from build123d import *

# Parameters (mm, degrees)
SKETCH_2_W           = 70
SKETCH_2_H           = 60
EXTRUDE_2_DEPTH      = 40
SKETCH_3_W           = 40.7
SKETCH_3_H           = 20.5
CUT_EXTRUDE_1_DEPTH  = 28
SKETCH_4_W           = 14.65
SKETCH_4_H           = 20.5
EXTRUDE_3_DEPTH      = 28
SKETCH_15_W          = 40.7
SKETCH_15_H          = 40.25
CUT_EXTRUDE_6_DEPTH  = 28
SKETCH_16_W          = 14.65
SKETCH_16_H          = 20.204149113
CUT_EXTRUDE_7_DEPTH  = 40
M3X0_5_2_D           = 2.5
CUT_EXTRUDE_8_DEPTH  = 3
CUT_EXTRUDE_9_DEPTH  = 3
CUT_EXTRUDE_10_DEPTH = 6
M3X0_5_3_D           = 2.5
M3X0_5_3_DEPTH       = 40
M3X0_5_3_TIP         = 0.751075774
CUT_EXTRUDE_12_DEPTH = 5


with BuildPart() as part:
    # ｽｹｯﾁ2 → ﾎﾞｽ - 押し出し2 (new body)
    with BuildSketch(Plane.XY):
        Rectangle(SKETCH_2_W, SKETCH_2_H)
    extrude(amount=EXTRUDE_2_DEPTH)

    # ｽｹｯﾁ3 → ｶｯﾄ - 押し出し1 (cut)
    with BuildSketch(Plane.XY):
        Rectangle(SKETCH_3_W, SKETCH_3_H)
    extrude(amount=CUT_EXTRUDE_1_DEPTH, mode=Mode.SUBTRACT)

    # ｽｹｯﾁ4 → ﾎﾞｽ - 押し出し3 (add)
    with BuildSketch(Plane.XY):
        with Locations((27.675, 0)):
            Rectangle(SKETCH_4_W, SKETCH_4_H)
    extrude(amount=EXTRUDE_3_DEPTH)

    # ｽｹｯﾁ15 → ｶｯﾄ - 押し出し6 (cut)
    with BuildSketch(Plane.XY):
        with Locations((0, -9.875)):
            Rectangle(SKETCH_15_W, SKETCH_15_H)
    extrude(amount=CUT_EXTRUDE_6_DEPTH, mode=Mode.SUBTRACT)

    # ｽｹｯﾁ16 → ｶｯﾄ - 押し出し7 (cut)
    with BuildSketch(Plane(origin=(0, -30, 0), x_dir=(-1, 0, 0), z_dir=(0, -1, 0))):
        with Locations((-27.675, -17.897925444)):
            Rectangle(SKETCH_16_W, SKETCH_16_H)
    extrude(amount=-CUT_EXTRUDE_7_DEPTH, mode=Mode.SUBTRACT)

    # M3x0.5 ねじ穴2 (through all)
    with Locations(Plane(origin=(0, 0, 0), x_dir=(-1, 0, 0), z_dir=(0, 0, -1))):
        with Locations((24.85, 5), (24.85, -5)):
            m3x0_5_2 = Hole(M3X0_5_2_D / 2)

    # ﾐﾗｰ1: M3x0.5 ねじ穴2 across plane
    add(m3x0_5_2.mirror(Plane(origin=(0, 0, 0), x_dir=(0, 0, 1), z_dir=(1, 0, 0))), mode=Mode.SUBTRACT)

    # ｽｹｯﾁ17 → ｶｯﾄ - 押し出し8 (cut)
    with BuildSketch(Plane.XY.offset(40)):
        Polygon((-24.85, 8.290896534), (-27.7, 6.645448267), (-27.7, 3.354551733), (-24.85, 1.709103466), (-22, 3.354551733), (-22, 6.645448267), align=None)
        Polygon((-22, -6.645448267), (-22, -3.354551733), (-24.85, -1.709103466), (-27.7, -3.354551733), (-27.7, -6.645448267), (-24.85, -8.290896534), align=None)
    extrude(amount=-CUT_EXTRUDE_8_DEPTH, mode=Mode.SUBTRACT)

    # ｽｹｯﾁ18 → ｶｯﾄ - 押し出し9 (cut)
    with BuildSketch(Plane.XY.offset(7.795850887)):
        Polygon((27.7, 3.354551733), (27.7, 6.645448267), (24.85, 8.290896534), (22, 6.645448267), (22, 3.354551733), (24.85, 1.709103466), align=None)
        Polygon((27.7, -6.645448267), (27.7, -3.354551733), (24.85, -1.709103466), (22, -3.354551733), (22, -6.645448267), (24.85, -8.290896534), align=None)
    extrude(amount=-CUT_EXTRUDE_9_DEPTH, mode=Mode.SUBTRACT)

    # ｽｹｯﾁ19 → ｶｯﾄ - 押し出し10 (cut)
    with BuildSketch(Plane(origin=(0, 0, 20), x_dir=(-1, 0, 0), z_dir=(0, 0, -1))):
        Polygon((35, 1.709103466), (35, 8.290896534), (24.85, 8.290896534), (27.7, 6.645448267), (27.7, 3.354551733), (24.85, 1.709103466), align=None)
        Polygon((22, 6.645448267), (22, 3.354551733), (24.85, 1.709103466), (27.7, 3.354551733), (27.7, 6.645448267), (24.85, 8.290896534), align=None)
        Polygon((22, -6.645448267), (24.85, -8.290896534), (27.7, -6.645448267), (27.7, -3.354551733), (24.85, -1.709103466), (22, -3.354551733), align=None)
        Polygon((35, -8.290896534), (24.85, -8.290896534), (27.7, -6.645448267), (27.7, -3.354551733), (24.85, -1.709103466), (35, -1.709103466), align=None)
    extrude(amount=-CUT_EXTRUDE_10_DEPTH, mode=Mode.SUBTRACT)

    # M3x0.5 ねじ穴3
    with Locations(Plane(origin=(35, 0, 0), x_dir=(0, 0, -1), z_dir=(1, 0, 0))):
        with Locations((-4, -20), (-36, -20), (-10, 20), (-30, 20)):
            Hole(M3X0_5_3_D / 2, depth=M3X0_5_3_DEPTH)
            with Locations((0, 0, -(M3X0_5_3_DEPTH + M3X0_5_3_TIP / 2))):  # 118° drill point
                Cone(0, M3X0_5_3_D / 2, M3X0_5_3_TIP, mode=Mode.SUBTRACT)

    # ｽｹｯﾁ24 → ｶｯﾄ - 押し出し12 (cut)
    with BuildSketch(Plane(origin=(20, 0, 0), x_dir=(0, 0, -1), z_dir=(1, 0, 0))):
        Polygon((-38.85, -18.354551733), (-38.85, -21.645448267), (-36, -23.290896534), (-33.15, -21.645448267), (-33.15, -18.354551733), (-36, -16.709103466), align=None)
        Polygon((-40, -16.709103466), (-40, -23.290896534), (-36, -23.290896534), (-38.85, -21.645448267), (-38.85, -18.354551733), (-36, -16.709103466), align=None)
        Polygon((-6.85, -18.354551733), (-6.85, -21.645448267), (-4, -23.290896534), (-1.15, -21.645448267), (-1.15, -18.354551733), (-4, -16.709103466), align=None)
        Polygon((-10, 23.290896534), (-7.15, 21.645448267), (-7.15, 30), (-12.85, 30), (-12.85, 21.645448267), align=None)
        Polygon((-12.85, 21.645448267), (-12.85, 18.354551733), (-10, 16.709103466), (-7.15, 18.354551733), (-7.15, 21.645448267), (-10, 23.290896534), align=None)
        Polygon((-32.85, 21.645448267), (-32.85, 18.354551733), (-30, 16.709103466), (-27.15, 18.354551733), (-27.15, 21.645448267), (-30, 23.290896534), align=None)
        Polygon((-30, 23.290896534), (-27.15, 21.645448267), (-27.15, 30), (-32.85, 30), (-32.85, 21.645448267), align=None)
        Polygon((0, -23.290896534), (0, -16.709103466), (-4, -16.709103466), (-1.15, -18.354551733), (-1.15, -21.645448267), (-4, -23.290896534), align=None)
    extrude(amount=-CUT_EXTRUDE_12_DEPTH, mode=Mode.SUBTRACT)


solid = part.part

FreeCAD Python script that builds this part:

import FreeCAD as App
import Part
import Sketcher
from FreeCAD import Vector
Q = App.Units.Quantity


def add_polygon(sketch, points):
    """Adds a closed chain of lines whose ends are joined by coincident constraints."""
    first, n = sketch.GeometryCount, len(points)
    for a, b in zip(points, points[1:] + points[:1]):
        sketch.addGeometry(Part.LineSegment(App.Vector(*a, 0), App.Vector(*b, 0)), False)
    for i in range(n):
        sketch.addConstraint(Sketcher.Constraint("Coincident", first + i, 2, first + (i + 1) % n, 1))

doc = App.newDocument("Part")
body = doc.addObject("PartDesign::Body", "Body")

# Sketch on XY plane
sketch1 = body.newObject("Sketcher::SketchObject", "Sketch")
sketch1.AttachmentSupport = (doc.getObject("XY_Plane"), [""])
sketch1.MapMode = "FlatFace"
add_polygon(sketch1, [(-35, 30), (-35, -30), (35, -30), (35, 30)])  # lines 0-3
sketch1.addConstraint(Sketcher.Constraint("Vertical", 0))
sketch1.addConstraint(Sketcher.Constraint("Horizontal", 1))
sketch1.addConstraint(Sketcher.Constraint("Vertical", 2))
sketch1.addConstraint(Sketcher.Constraint("Horizontal", 3))
sketch1.addConstraint(Sketcher.Constraint("Symmetric", 0, 2, 2, 2, -1, 1))
sketch1.addConstraint(Sketcher.Constraint("DistanceX", 1, 1, 1, 2, Q("70 mm")))
sketch1.addConstraint(Sketcher.Constraint("DistanceY", 0, 2, 0, 1, Q("60 mm")))
pad1 = body.newObject("PartDesign::Pad", "Pad")
pad1.Profile = sketch1
pad1.Length = 40

# Sketch on XY plane
sketch2 = body.newObject("Sketcher::SketchObject", "Sketch001")
sketch2.AttachmentSupport = (doc.getObject("XY_Plane"), [""])
sketch2.MapMode = "FlatFace"
add_polygon(sketch2, [(-20, 10), (-20, -10), (20, -10), (20, 10)])  # lines 0-3
sketch2.addConstraint(Sketcher.Constraint("Vertical", 0))
sketch2.addConstraint(Sketcher.Constraint("Horizontal", 1))
sketch2.addConstraint(Sketcher.Constraint("Vertical", 2))
sketch2.addConstraint(Sketcher.Constraint("Horizontal", 3))
sketch2.addConstraint(Sketcher.Constraint("Symmetric", 0, 2, 2, 2, -1, 1))
sketch2.addConstraint(Sketcher.Constraint("DistanceX", 1, 1, 1, 2, Q("40.7 mm")))
sketch2.addConstraint(Sketcher.Constraint("DistanceY", 0, 2, 0, 1, Q("20.5 mm")))
pocket1 = body.newObject("PartDesign::Pocket", "Pocket")
pocket1.Profile = sketch2
pocket1.Length = 28
pocket1.Reversed = True

# Sketch on XY plane
sketch3 = body.newObject("Sketcher::SketchObject", "Sketch002")
sketch3.AttachmentSupport = (doc.getObject("XY_Plane"), [""])
sketch3.MapMode = "FlatFace"
add_polygon(sketch3, [(20, 10), (20, -10), (35, -10), (35, 10)])  # lines 0-3
sketch3.addConstraint(Sketcher.Constraint("Vertical", 0))
sketch3.addConstraint(Sketcher.Constraint("Horizontal", 1))
sketch3.addConstraint(Sketcher.Constraint("Vertical", 2))
sketch3.addConstraint(Sketcher.Constraint("Horizontal", 3))
sketch3.addConstraint(Sketcher.Constraint("DistanceY", 0, 2, 0, 1, Q("20.5 mm")))
sketch3.addConstraint(Sketcher.Constraint("DistanceX", -1, 1, 1, 2, Q("35 mm")))
sketch3.addConstraint(Sketcher.Constraint("DistanceX", 1, 1, 1, 2, Q("14.65 mm")))
sketch3.addConstraint(Sketcher.Constraint("DistanceY", 0, 2, -1, 1, Q("10.25 mm")))
pad2 = body.newObject("PartDesign::Pad", "Pad001")
pad2.Profile = sketch3
pad2.Length = 28

# Sketch on XY plane
sketch4 = body.newObject("Sketcher::SketchObject", "Sketch003")
sketch4.AttachmentSupport = (doc.getObject("XY_Plane"), [""])
sketch4.MapMode = "FlatFace"
add_polygon(sketch4, [(-20, 10), (-20, -30), (20, -30), (20, 10)])  # lines 0-3
sketch4.addConstraint(Sketcher.Constraint("Vertical", 0))
sketch4.addConstraint(Sketcher.Constraint("Horizontal", 1))
sketch4.addConstraint(Sketcher.Constraint("Vertical", 2))
sketch4.addConstraint(Sketcher.Constraint("Horizontal", 3))
sketch4.addConstraint(Sketcher.Constraint("DistanceX", 1, 1, 1, 2, Q("40.7 mm")))
sketch4.addConstraint(Sketcher.Constraint("DistanceY", 0, 2, -1, 1, Q("30 mm")))
sketch4.addConstraint(Sketcher.Constraint("DistanceY", 0, 2, 0, 1, Q("40.25 mm")))
sketch4.addConstraint(Sketcher.Constraint("DistanceX", 0, 2, -1, 1, Q("20.35 mm")))
pocket2 = body.newObject("PartDesign::Pocket", "Pocket001")
pocket2.Profile = sketch4
pocket2.Length = 28
pocket2.Reversed = True

# Sketch on XZ plane
sketch5 = body.newObject("Sketcher::SketchObject", "Sketch004")
sketch5.AttachmentSupport = (doc.getObject("XZ_Plane"), [""])
sketch5.MapMode = "FlatFace"
sketch5.AttachmentOffset = App.Placement(Vector(0, 0, 30), App.Rotation())
add_polygon(sketch5, [(35, 8), (35, 28), (20, 28), (20, 8)])  # lines 0-3
sketch5.addConstraint(Sketcher.Constraint("Vertical", 0))
sketch5.addConstraint(Sketcher.Constraint("Horizontal", 1))
sketch5.addConstraint(Sketcher.Constraint("Vertical", 2))
sketch5.addConstraint(Sketcher.Constraint("Horizontal", 3))
sketch5.addConstraint(Sketcher.Constraint("DistanceX", -1, 1, 0, 2, Q("35 mm")))
sketch5.addConstraint(Sketcher.Constraint("DistanceY", -1, 1, 0, 2, Q("28 mm")))
sketch5.addConstraint(Sketcher.Constraint("DistanceX", 1, 2, 1, 1, Q("14.65 mm")))
sketch5.addConstraint(Sketcher.Constraint("DistanceY", 0, 1, 0, 2, Q("20.204149 mm")))
pocket3 = body.newObject("PartDesign::Pocket", "Pocket002")
pocket3.Profile = sketch5
pocket3.Length = 40

# Sketch on XY plane
sketch6 = body.newObject("Sketcher::SketchObject", "Sketch005")
sketch6.AttachmentSupport = (doc.getObject("XY_Plane"), [""])
sketch6.MapMode = "FlatFace"
sketch6.addGeometry(Part.Circle(Vector(-24.9, 5, 0), Vector(0, 0, 1), 1.2), False)
sketch6.addGeometry(Part.Circle(Vector(-24.9, -5, 0), Vector(0, 0, 1), 1.2), False)
sketch6.addConstraint(Sketcher.Constraint("Equal", 0, 1))
sketch6.addConstraint(Sketcher.Constraint("Symmetric", 0, 3, 1, 3, -1))
sketch6.addConstraint(Sketcher.Constraint("Diameter", 0, Q("2.5 mm")))
sketch6.addConstraint(Sketcher.Constraint("DistanceY", -1, 1, 0, 3, Q("5 mm")))
sketch6.addConstraint(Sketcher.Constraint("DistanceX", 0, 3, -1, 1, Q("24.85 mm")))
doc.recompute()
hole = body.newObject("PartDesign::Hole", "Hole")
hole.Profile = sketch6
hole.ThreadType = "None"
hole.Diameter = 2.5
hole.DepthType = "ThroughAll"
hole.Reversed = True
doc.recompute()

mirrored = body.newObject("PartDesign::Mirrored", "Mirrored")
mirrored.Originals = [hole]
mirrored.MirrorPlane = (doc.getObject("YZ_Plane"), [""])
body.Tip = mirrored

# Sketch on XY plane
sketch7 = body.newObject("Sketcher::SketchObject", "Sketch006")
sketch7.AttachmentSupport = (doc.getObject("XY_Plane"), [""])
sketch7.MapMode = "FlatFace"
sketch7.AttachmentOffset = App.Placement(Vector(0, 0, 40), App.Rotation())
add_polygon(sketch7, [(-24.9, 8.3), (-27.7, 6.6), (-27.7, 3.4), (-24.9, 1.7), (-22, 3.4), (-22, 6.6)])  # lines 0-5
add_polygon(sketch7, [(-22, -6.6), (-22, -3.4), (-24.9, -1.7), (-27.7, -3.4), (-27.7, -6.6), (-24.9, -8.3)])  # lines 6-11
sketch7.addConstraint(Sketcher.Constraint("Vertical", 1))
sketch7.addConstraint(Sketcher.Constraint("Vertical", 4))
sketch7.addConstraint(Sketcher.Constraint("Vertical", 6))
sketch7.addConstraint(Sketcher.Constraint("Vertical", 9))
sketch7.addConstraint(Sketcher.Constraint("Symmetric", 3, 2, 6, 2, -1))
sketch7.addConstraint(Sketcher.Constraint("Symmetric", 2, 2, 7, 2, -1))
sketch7.addConstraint(Sketcher.Constraint("Symmetric", 1, 2, 8, 2, -1))
sketch7.addConstraint(Sketcher.Constraint("Symmetric", 5, 2, 10, 2, -1))
sketch7.addConstraint(Sketcher.Constraint("Parallel", 0, 3))
sketch7.addConstraint(Sketcher.Constraint("Parallel", 2, 5))
sketch7.addConstraint(Sketcher.Constraint("Parallel", 5, 7))
sketch7.addConstraint(Sketcher.Constraint("Parallel", 7, 10))
sketch7.addConstraint(Sketcher.Constraint("Parallel", 8, 11))
sketch7.addConstraint(Sketcher.Constraint("Horizontal", 1, 2, 3, 2))
sketch7.addConstraint(Sketcher.Constraint("Horizontal", 0, 2, 4, 2))
sketch7.addConstraint(Sketcher.Constraint("Angle", 0, Q("-150 deg")))
sketch7.addConstraint(Sketcher.Constraint("DistanceX", 3, 2, -1, 1, Q("22 mm")))
sketch7.addConstraint(Sketcher.Constraint("DistanceY", 6, 2, 4, 2, Q("10 mm")))
sketch7.addConstraint(Sketcher.Constraint("DistanceX", 0, 2, -1, 1, Q("27.7 mm")))
sketch7.addConstraint(Sketcher.Constraint("DistanceY", 1, 2, 1, 1, Q("3.290897 mm")))
pocket4 = body.newObject("PartDesign::Pocket", "Pocket003")
pocket4.Profile = sketch7
pocket4.Length = 3

# Sketch on XY plane
sketch8 = body.newObject("Sketcher::SketchObject", "Sketch007")
sketch8.AttachmentSupport = (doc.getObject("XY_Plane"), [""])
sketch8.MapMode = "FlatFace"
sketch8.AttachmentOffset = App.Placement(Vector(0, 0, 7.795851), App.Rotation())
add_polygon(sketch8, [(27.7, 3.4), (27.7, 6.6), (24.9, 8.3), (22, 6.6), (22, 3.4), (24.9, 1.7)])  # lines 0-5
add_polygon(sketch8, [(27.7, -6.6), (27.7, -3.4), (24.9, -1.7), (22, -3.4), (22, -6.6), (24.9, -8.3)])  # lines 6-11
sketch8.addConstraint(Sketcher.Constraint("Vertical", 0))
sketch8.addConstraint(Sketcher.Constraint("Vertical", 3))
sketch8.addConstraint(Sketcher.Constraint("Vertical", 6))
sketch8.addConstraint(Sketcher.Constraint("Vertical", 9))
sketch8.addConstraint(Sketcher.Constraint("Symmetric", 5, 2, 6, 2, -1))
sketch8.addConstraint(Sketcher.Constraint("Symmetric", 4, 2, 7, 2, -1))
sketch8.addConstraint(Sketcher.Constraint("Symmetric", 3, 2, 8, 2, -1))
sketch8.addConstraint(Sketcher.Constraint("Symmetric", 1, 2, 10, 2, -1))
sketch8.addConstraint(Sketcher.Constraint("Parallel", 1, 4))
sketch8.addConstraint(Sketcher.Constraint("Parallel", 2, 5))
sketch8.addConstraint(Sketcher.Constraint("Parallel", 4, 7))
sketch8.addConstraint(Sketcher.Constraint("Parallel", 7, 10))
sketch8.addConstraint(Sketcher.Constraint("Parallel", 8, 11))
sketch8.addConstraint(Sketcher.Constraint("Horizontal", 0, 2, 2, 2))
sketch8.addConstraint(Sketcher.Constraint("Horizontal", 3, 2, 5, 2))
sketch8.addConstraint(Sketcher.Constraint("Angle", 1, Q("150 deg")))
sketch8.addConstraint(Sketcher.Constraint("DistanceX", -1, 1, 2, 2, Q("22 mm")))
sketch8.addConstraint(Sketcher.Constraint("DistanceY", 6, 2, 0, 2, Q("10 mm")))
sketch8.addConstraint(Sketcher.Constraint("DistanceX", -1, 1, 0, 2, Q("27.7 mm")))
sketch8.addConstraint(Sketcher.Constraint("DistanceY", 0, 1, 0, 2, Q("3.290897 mm")))
pocket5 = body.newObject("PartDesign::Pocket", "Pocket004")
pocket5.Profile = sketch8
pocket5.Length = 3

# Sketch on XY plane
sketch9 = body.newObject("Sketcher::SketchObject", "Sketch008")
sketch9.AttachmentSupport = (doc.getObject("XY_Plane"), [""])
sketch9.MapMode = "FlatFace"
sketch9.AttachmentOffset = App.Placement(Vector(0, 0, 20), App.Rotation())
add_polygon(sketch9, [(-35, 1.7), (-35, 8.3), (-24.9, 8.3), (-22, 6.6), (-22, 3.4), (-24.9, 1.7)])  # lines 0-5
add_polygon(sketch9, [(-22, -6.6), (-24.9, -8.3), (-35, -8.3), (-35, -1.7), (-24.9, -1.7), (-22, -3.4)])  # lines 6-11
sketch9.addConstraint(Sketcher.Constraint("Vertical", 0))
sketch9.addConstraint(Sketcher.Constraint("Horizontal", 1))
sketch9.addConstraint(Sketcher.Constraint("Vertical", 3))
sketch9.addConstraint(Sketcher.Constraint("Horizontal", 5))
sketch9.addConstraint(Sketcher.Constraint("Horizontal", 7))
sketch9.addConstraint(Sketcher.Constraint("Vertical", 8))
sketch9.addConstraint(Sketcher.Constraint("Horizontal", 9))
sketch9.addConstraint(Sketcher.Constraint("Vertical", 11))
sketch9.addConstraint(Sketcher.Constraint("Symmetric", 1, 2, 6, 2, -1))
sketch9.addConstraint(Sketcher.Constraint("Symmetric", 5, 2, 8, 2, -1))
sketch9.addConstraint(Sketcher.Constraint("Symmetric", 3, 2, 10, 2, -1))
sketch9.addConstraint(Sketcher.Constraint("Parallel", 4, 6))
sketch9.addConstraint(Sketcher.Constraint("Parallel", 2, 10))
sketch9.addConstraint(Sketcher.Constraint("Vertical", 1, 2, 4, 2))
sketch9.addConstraint(Sketcher.Constraint("Vertical", 6, 2, 9, 2))
sketch9.addConstraint(Sketcher.Constraint("Angle", 2, Q("-30 deg")))
sketch9.addConstraint(Sketcher.Constraint("DistanceX", 0, 2, -1, 1, Q("35 mm")))
sketch9.addConstraint(Sketcher.Constraint("DistanceX", 2, 2, -1, 1, Q("22 mm")))
sketch9.addConstraint(Sketcher.Constraint("DistanceY", 6, 2, 4, 2, Q("10 mm")))
sketch9.addConstraint(Sketcher.Constraint("DistanceX", 1, 1, 1, 2, Q("10.15 mm")))
sketch9.addConstraint(Sketcher.Constraint("DistanceY", 0, 1, 0, 2, Q("6.581793 mm")))
pocket6 = body.newObject("PartDesign::Pocket", "Pocket005")
pocket6.Profile = sketch9
pocket6.Length = 6
pocket6.Reversed = True

# Sketch on YZ plane
sketch10 = body.newObject("Sketcher::SketchObject", "Sketch009")
sketch10.AttachmentSupport = (doc.getObject("YZ_Plane"), [""])
sketch10.MapMode = "FlatFace"
sketch10.AttachmentOffset = App.Placement(Vector(0, 0, 35), App.Rotation())
sketch10.addGeometry(Part.Circle(Vector(-20, 4, 0), Vector(0, 0, 1), 1.2), False)
sketch10.addGeometry(Part.Circle(Vector(-20, 36, 0), Vector(0, 0, 1), 1.2), False)
sketch10.addGeometry(Part.Circle(Vector(20, 10, 0), Vector(0, 0, 1), 1.2), False)
sketch10.addGeometry(Part.Circle(Vector(20, 30, 0), Vector(0, 0, 1), 1.2), False)
sketch10.addConstraint(Sketcher.Constraint("Equal", 0, 1))
sketch10.addConstraint(Sketcher.Constraint("Equal", 1, 2))
sketch10.addConstraint(Sketcher.Constraint("Equal", 2, 3))
sketch10.addConstraint(Sketcher.Constraint("Vertical", 0, 3, 1, 3))
sketch10.addConstraint(Sketcher.Constraint("Vertical", 2, 3, 3, 3))
sketch10.addConstraint(Sketcher.Constraint("Diameter", 0, Q("2.5 mm")))
sketch10.addConstraint(Sketcher.Constraint("DistanceX", 0, 3, -1, 1, Q("20 mm")))
sketch10.addConstraint(Sketcher.Constraint("DistanceY", -1, 1, 0, 3, Q("4 mm")))
sketch10.addConstraint(Sketcher.Constraint("DistanceY", -1, 1, 1, 3, Q("36 mm")))
sketch10.addConstraint(Sketcher.Constraint("DistanceX", -1, 1, 2, 3, Q("20 mm")))
sketch10.addConstraint(Sketcher.Constraint("DistanceY", -1, 1, 2, 3, Q("10 mm")))
sketch10.addConstraint(Sketcher.Constraint("DistanceY", -1, 1, 3, 3, Q("30 mm")))
doc.recompute()
hole2 = body.newObject("PartDesign::Hole", "Hole001")
hole2.Profile = sketch10
hole2.ThreadType = "None"
hole2.Diameter = 2.5
hole2.DepthType = "Dimension"
hole2.Depth = 40
hole2.DrillPoint = "Angled"
hole2.DrillPointAngle = 118

# Sketch on YZ plane
sketch11 = body.newObject("Sketcher::SketchObject", "Sketch010")
sketch11.AttachmentSupport = (doc.getObject("YZ_Plane"), [""])
sketch11.MapMode = "FlatFace"
sketch11.AttachmentOffset = App.Placement(Vector(0, 0, 20), App.Rotation())
add_polygon(sketch11, [(-23.3, 36), (-21.6, 33.1), (-18.4, 33.1), (-16.7, 36), (-16.7, 40), (-23.3, 40)])  # lines 0-5
add_polygon(sketch11, [(-18.4, 6.8), (-21.6, 6.8), (-23.3, 4), (-23.3, 0), (-16.7, 0), (-16.7, 4)])  # lines 6-11
add_polygon(sketch11, [(30, 7.2), (30, 12.8), (18.4, 12.8), (16.7, 10), (18.4, 7.2)])  # lines 12-16
add_polygon(sketch11, [(18.4, 32.9), (16.7, 30), (18.4, 27.1), (30, 27.1), (30, 32.9)])  # lines 17-21
sketch11.addConstraint(Sketcher.Constraint("Horizontal", 1))
sketch11.addConstraint(Sketcher.Constraint("Vertical", 3))
sketch11.addConstraint(Sketcher.Constraint("Horizontal", 4))
sketch11.addConstraint(Sketcher.Constraint("Vertical", 5))
sketch11.addConstraint(Sketcher.Constraint("Horizontal", 6))
sketch11.addConstraint(Sketcher.Constraint("Vertical", 8))
sketch11.addConstraint(Sketcher.Constraint("Horizontal", 9))
sketch11.addConstraint(Sketcher.Constraint("Vertical", 10))
sketch11.addConstraint(Sketcher.Constraint("Vertical", 12))
sketch11.addConstraint(Sketcher.Constraint("Horizontal", 13))
sketch11.addConstraint(Sketcher.Constraint("Horizontal", 16))
sketch11.addConstraint(Sketcher.Constraint("Horizontal", 19))
sketch11.addConstraint(Sketcher.Constraint("Vertical", 20))
sketch11.addConstraint(Sketcher.Constraint("Horizontal", 21))
sketch11.addConstraint(Sketcher.Constraint("PointOnObject", 8, 2, -1))
sketch11.addConstraint(Sketcher.Constraint("Parallel", 2, 7))
sketch11.addConstraint(Sketcher.Constraint("Parallel", 0, 11))
sketch11.addConstraint(Sketcher.Constraint("Parallel", 7, 14))
sketch11.addConstraint(Sketcher.Constraint("Parallel", 11, 15))
sketch11.addConstraint(Sketcher.Constraint("Parallel", 14, 17))
sketch11.addConstraint(Sketcher.Constraint("Parallel", 15, 18))
sketch11.addConstraint(Sketcher.Constraint("Horizontal", 2, 2, 5, 2))
sketch11.addConstraint(Sketcher.Constraint("Horizontal", 7, 2, 10, 2))
sketch11.addConstraint(Sketcher.Constraint("Vertical", 0, 2, 6, 2))
sketch11.addConstraint(Sketcher.Constraint("Vertical", 5, 2, 7, 2))
sketch11.addConstraint(Sketcher.Constraint("Vertical", 3, 2, 9, 2))
sketch11.addConstraint(Sketcher.Constraint("Vertical", 1, 2, 11, 2))
sketch11.addConstraint(Sketcher.Constraint("Vertical", 13, 2, 15, 2))
sketch11.addConstraint(Sketcher.Constraint("Vertical", 14, 2, 17, 2))
sketch11.addConstraint(Sketcher.Constraint("Vertical", 15, 2, 18, 2))
sketch11.addConstraint(Sketcher.Constraint("Vertical", 16, 2, 19, 2))
sketch11.addConstraint(Sketcher.Constraint("Vertical", 18, 2, 21, 2))
sketch11.addConstraint(Sketcher.Constraint("Equal", 5, 8))
sketch11.addConstraint(Sketcher.Constraint("Equal", 11, 14))
sketch11.addConstraint(Sketcher.Constraint("DistanceY", 3, 1, 3, 2, Q("4 mm")))
sketch11.addConstraint(Sketcher.Constraint("Angle", 0, Q("-60 deg")))
sketch11.addConstraint(Sketcher.Constraint("DistanceY", 12, 1, 12, 2, Q("5.7 mm")))
sketch11.addConstraint(Sketcher.Constraint("DistanceY", -1, 1, 2, 2, Q("36 mm")))
sketch11.addConstraint(Sketcher.Constraint("DistanceX", -1, 1, 12, 2, Q("30 mm")))
sketch11.addConstraint(Sketcher.Constraint("DistanceY", -1, 1, 14, 2, Q("10 mm")))
sketch11.addConstraint(Sketcher.Constraint("DistanceY", -1, 1, 17, 2, Q("30 mm")))
sketch11.addConstraint(Sketcher.Constraint("DistanceX", 6, 2, 13, 2, Q("40 mm")))
sketch11.addConstraint(Sketcher.Constraint("DistanceX", 13, 2, 13, 1, Q("11.645448 mm")))
sketch11.addConstraint(Sketcher.Constraint("DistanceX", 1, 1, 1, 2, Q("3.290897 mm")))
pocket7 = body.newObject("PartDesign::Pocket", "Pocket006")
pocket7.Profile = sketch11
pocket7.Length = 5

doc.recompute()
